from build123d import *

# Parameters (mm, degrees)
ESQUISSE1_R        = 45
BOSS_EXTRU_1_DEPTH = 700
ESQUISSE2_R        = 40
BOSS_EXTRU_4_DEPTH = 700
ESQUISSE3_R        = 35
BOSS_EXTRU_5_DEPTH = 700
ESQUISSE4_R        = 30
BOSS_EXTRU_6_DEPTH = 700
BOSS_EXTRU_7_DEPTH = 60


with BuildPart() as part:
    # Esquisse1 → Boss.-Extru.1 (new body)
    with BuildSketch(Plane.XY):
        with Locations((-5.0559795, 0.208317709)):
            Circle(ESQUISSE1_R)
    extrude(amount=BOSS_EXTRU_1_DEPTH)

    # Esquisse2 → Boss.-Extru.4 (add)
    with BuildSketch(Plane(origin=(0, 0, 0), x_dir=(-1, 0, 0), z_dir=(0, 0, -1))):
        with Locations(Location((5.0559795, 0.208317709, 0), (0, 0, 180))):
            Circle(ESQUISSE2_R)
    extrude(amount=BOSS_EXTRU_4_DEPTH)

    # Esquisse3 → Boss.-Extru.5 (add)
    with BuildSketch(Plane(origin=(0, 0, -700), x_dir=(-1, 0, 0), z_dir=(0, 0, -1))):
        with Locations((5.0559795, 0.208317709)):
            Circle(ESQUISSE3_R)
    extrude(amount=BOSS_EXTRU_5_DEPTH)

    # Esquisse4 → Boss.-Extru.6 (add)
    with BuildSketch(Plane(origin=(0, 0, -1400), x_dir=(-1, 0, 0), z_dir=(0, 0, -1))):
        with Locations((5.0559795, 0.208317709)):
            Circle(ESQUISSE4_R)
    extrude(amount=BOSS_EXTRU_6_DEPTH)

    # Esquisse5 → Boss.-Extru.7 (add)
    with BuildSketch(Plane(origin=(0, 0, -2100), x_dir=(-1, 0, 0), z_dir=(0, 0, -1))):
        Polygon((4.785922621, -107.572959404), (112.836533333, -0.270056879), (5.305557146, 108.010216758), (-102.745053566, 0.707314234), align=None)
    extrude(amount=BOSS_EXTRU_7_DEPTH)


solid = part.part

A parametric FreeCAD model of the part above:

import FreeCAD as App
import Part
import Sketcher
Q = App.Units.Quantity


def add_polygon(sketch, points):
    """Adds a closed chain of lines whose ends are joined by coincident constraints."""
    first, n = sketch.GeometryCount, len(points)
    for a, b in zip(points, points[1:] + points[:1]):
        sketch.addGeometry(Part.LineSegment(App.Vector(*a, 0), App.Vector(*b, 0)), False)
    for i in range(n):
        sketch.addConstraint(Sketcher.Constraint("Coincident", first + i, 2, first + (i + 1) % n, 1))

doc = App.newDocument("Part")
body = doc.addObject("PartDesign::Body", "Body")

# Sketch on XY plane
sketch1 = doc.addObject("Sketcher::SketchObject", "Sketch")
body.addObject(sketch1)
sketch1.AttachmentSupport = (doc.XY_Plane, [""])
sketch1.MapMode = "FlatFace"
sketch1.addGeometry(Part.Circle(App.Vector(-5.05598, 0.208318, 0), App.Vector(0, 0, 1), 45), False)
sketch1.addConstraint([
    Sketcher.Constraint("Diameter", 0, Q("90 mm")),
    Sketcher.Constraint("DistanceX", 0, 3, -1, 1, Q("5.05598 mm")),
    Sketcher.Constraint("DistanceY", -1, 1, 0, 3, Q("0.208318 mm")),
])
pad1 = doc.addObject("PartDesign::Pad", "Pad")
body.addObject(pad1)
pad1.Profile = sketch1
pad1.Length = 700

# Sketch on XY plane
sketch2 = doc.addObject("Sketcher::SketchObject", "Sketch001")
body.addObject(sketch2)
sketch2.AttachmentSupport = (doc.XY_Plane, [""])
sketch2.MapMode = "FlatFace"
sketch2.addGeometry(Part.Circle(App.Vector(-5.05598, 0.208318, 0), App.Vector(0, 0, 1), 40), False)
sketch2.addConstraint([
    Sketcher.Constraint("Diameter", 0, Q("80 mm")),
    Sketcher.Constraint("DistanceX", 0, 3, -1, 1, Q("5.05598 mm")),
    Sketcher.Constraint("DistanceY", -1, 1, 0, 3, Q("0.208318 mm")),
])
pad2 = doc.addObject("PartDesign::Pad", "Pad001")
body.addObject(pad2)
pad2.Profile = sketch2
pad2.Length = 700
pad2.Reversed = True

# Sketch on XY plane
sketch3 = doc.addObject("Sketcher::SketchObject", "Sketch002")
body.addObject(sketch3)
sketch3.AttachmentSupport = (doc.XY_Plane, [""])
sketch3.MapMode = "FlatFace"
sketch3.AttachmentOffset = App.Placement(App.Vector(0, 0, -700), App.Rotation())
sketch3.addGeometry(Part.Circle(App.Vector(-5.05598, 0.208318, 0), App.Vector(0, 0, 1), 35), False)
sketch3.addConstraint([
    Sketcher.Constraint("Diameter", 0, Q("70 mm")),
    Sketcher.Constraint("DistanceX", 0, 3, -1, 1, Q("5.05598 mm")),
    Sketcher.Constraint("DistanceY", -1, 1, 0, 3, Q("0.208318 mm")),
])
pad3 = doc.addObject("PartDesign::Pad", "Pad002")
body.addObject(pad3)
pad3.Profile = sketch3
pad3.Length = 700
pad3.Reversed = True

# Sketch on XY plane
sketch4 = doc.addObject("Sketcher::SketchObject", "Sketch003")
body.addObject(sketch4)
sketch4.AttachmentSupport = (doc.XY_Plane, [""])
sketch4.MapMode = "FlatFace"
sketch4.AttachmentOffset = App.Placement(App.Vector(0, 0, -1400), App.Rotation())
sketch4.addGeometry(Part.Circle(App.Vector(-5.05598, 0.208318, 0), App.Vector(0, 0, 1), 30), False)
sketch4.addConstraint([
    Sketcher.Constraint("Diameter", 0, Q("60 mm")),
    Sketcher.Constraint("DistanceX", 0, 3, -1, 1, Q("5.05598 mm")),
    Sketcher.Constraint("DistanceY", -1, 1, 0, 3, Q("0.208318 mm")),
])
pad4 = doc.addObject("PartDesign::Pad", "Pad003")
body.addObject(pad4)
pad4.Profile = sketch4
pad4.Length = 700
pad4.Reversed = True

# Sketch on XY plane
sketch5 = doc.addObject("Sketcher::SketchObject", "Sketch004")
body.addObject(sketch5)
sketch5.AttachmentSupport = (doc.XY_Plane, [""])
sketch5.MapMode = "FlatFace"
sketch5.AttachmentOffset = App.Placement(App.Vector(0, 0, -2100), App.Rotation())
add_polygon(sketch5, [(-4.785923, -107.572959), (-112.836533, -0.270057), (-5.305557, 108.010217), (102.745054, 0.707314)])  # lines 0-3
sketch5.addConstraint([
    Sketcher.Constraint("Perpendicular", 0, 1),
    Sketcher.Constraint("Perpendicular", 1, 2),
    Sketcher.Constraint("Perpendicular", 2, 3),
    Sketcher.Constraint("DistanceY", 3, 2, -1, 1, Q("107.572959 mm")),
    Sketcher.Constraint("DistanceX", 1, 2, 2, 2, Q("108.050611 mm")),
    Sketcher.Constraint("DistanceY", 0, 2, 2, 2, Q("0.977371 mm")),
    Sketcher.Constraint("Distance", 0, Q("152.278847 mm")),
    Sketcher.Constraint("DistanceX", 0, 2, -1, 1, Q("112.836533 mm")),
])
pad5 = doc.addObject("PartDesign::Pad", "Pad004")
body.addObject(pad5)
pad5.Profile = sketch5
pad5.Length = 60
pad5.Reversed = True

doc.recompute()
